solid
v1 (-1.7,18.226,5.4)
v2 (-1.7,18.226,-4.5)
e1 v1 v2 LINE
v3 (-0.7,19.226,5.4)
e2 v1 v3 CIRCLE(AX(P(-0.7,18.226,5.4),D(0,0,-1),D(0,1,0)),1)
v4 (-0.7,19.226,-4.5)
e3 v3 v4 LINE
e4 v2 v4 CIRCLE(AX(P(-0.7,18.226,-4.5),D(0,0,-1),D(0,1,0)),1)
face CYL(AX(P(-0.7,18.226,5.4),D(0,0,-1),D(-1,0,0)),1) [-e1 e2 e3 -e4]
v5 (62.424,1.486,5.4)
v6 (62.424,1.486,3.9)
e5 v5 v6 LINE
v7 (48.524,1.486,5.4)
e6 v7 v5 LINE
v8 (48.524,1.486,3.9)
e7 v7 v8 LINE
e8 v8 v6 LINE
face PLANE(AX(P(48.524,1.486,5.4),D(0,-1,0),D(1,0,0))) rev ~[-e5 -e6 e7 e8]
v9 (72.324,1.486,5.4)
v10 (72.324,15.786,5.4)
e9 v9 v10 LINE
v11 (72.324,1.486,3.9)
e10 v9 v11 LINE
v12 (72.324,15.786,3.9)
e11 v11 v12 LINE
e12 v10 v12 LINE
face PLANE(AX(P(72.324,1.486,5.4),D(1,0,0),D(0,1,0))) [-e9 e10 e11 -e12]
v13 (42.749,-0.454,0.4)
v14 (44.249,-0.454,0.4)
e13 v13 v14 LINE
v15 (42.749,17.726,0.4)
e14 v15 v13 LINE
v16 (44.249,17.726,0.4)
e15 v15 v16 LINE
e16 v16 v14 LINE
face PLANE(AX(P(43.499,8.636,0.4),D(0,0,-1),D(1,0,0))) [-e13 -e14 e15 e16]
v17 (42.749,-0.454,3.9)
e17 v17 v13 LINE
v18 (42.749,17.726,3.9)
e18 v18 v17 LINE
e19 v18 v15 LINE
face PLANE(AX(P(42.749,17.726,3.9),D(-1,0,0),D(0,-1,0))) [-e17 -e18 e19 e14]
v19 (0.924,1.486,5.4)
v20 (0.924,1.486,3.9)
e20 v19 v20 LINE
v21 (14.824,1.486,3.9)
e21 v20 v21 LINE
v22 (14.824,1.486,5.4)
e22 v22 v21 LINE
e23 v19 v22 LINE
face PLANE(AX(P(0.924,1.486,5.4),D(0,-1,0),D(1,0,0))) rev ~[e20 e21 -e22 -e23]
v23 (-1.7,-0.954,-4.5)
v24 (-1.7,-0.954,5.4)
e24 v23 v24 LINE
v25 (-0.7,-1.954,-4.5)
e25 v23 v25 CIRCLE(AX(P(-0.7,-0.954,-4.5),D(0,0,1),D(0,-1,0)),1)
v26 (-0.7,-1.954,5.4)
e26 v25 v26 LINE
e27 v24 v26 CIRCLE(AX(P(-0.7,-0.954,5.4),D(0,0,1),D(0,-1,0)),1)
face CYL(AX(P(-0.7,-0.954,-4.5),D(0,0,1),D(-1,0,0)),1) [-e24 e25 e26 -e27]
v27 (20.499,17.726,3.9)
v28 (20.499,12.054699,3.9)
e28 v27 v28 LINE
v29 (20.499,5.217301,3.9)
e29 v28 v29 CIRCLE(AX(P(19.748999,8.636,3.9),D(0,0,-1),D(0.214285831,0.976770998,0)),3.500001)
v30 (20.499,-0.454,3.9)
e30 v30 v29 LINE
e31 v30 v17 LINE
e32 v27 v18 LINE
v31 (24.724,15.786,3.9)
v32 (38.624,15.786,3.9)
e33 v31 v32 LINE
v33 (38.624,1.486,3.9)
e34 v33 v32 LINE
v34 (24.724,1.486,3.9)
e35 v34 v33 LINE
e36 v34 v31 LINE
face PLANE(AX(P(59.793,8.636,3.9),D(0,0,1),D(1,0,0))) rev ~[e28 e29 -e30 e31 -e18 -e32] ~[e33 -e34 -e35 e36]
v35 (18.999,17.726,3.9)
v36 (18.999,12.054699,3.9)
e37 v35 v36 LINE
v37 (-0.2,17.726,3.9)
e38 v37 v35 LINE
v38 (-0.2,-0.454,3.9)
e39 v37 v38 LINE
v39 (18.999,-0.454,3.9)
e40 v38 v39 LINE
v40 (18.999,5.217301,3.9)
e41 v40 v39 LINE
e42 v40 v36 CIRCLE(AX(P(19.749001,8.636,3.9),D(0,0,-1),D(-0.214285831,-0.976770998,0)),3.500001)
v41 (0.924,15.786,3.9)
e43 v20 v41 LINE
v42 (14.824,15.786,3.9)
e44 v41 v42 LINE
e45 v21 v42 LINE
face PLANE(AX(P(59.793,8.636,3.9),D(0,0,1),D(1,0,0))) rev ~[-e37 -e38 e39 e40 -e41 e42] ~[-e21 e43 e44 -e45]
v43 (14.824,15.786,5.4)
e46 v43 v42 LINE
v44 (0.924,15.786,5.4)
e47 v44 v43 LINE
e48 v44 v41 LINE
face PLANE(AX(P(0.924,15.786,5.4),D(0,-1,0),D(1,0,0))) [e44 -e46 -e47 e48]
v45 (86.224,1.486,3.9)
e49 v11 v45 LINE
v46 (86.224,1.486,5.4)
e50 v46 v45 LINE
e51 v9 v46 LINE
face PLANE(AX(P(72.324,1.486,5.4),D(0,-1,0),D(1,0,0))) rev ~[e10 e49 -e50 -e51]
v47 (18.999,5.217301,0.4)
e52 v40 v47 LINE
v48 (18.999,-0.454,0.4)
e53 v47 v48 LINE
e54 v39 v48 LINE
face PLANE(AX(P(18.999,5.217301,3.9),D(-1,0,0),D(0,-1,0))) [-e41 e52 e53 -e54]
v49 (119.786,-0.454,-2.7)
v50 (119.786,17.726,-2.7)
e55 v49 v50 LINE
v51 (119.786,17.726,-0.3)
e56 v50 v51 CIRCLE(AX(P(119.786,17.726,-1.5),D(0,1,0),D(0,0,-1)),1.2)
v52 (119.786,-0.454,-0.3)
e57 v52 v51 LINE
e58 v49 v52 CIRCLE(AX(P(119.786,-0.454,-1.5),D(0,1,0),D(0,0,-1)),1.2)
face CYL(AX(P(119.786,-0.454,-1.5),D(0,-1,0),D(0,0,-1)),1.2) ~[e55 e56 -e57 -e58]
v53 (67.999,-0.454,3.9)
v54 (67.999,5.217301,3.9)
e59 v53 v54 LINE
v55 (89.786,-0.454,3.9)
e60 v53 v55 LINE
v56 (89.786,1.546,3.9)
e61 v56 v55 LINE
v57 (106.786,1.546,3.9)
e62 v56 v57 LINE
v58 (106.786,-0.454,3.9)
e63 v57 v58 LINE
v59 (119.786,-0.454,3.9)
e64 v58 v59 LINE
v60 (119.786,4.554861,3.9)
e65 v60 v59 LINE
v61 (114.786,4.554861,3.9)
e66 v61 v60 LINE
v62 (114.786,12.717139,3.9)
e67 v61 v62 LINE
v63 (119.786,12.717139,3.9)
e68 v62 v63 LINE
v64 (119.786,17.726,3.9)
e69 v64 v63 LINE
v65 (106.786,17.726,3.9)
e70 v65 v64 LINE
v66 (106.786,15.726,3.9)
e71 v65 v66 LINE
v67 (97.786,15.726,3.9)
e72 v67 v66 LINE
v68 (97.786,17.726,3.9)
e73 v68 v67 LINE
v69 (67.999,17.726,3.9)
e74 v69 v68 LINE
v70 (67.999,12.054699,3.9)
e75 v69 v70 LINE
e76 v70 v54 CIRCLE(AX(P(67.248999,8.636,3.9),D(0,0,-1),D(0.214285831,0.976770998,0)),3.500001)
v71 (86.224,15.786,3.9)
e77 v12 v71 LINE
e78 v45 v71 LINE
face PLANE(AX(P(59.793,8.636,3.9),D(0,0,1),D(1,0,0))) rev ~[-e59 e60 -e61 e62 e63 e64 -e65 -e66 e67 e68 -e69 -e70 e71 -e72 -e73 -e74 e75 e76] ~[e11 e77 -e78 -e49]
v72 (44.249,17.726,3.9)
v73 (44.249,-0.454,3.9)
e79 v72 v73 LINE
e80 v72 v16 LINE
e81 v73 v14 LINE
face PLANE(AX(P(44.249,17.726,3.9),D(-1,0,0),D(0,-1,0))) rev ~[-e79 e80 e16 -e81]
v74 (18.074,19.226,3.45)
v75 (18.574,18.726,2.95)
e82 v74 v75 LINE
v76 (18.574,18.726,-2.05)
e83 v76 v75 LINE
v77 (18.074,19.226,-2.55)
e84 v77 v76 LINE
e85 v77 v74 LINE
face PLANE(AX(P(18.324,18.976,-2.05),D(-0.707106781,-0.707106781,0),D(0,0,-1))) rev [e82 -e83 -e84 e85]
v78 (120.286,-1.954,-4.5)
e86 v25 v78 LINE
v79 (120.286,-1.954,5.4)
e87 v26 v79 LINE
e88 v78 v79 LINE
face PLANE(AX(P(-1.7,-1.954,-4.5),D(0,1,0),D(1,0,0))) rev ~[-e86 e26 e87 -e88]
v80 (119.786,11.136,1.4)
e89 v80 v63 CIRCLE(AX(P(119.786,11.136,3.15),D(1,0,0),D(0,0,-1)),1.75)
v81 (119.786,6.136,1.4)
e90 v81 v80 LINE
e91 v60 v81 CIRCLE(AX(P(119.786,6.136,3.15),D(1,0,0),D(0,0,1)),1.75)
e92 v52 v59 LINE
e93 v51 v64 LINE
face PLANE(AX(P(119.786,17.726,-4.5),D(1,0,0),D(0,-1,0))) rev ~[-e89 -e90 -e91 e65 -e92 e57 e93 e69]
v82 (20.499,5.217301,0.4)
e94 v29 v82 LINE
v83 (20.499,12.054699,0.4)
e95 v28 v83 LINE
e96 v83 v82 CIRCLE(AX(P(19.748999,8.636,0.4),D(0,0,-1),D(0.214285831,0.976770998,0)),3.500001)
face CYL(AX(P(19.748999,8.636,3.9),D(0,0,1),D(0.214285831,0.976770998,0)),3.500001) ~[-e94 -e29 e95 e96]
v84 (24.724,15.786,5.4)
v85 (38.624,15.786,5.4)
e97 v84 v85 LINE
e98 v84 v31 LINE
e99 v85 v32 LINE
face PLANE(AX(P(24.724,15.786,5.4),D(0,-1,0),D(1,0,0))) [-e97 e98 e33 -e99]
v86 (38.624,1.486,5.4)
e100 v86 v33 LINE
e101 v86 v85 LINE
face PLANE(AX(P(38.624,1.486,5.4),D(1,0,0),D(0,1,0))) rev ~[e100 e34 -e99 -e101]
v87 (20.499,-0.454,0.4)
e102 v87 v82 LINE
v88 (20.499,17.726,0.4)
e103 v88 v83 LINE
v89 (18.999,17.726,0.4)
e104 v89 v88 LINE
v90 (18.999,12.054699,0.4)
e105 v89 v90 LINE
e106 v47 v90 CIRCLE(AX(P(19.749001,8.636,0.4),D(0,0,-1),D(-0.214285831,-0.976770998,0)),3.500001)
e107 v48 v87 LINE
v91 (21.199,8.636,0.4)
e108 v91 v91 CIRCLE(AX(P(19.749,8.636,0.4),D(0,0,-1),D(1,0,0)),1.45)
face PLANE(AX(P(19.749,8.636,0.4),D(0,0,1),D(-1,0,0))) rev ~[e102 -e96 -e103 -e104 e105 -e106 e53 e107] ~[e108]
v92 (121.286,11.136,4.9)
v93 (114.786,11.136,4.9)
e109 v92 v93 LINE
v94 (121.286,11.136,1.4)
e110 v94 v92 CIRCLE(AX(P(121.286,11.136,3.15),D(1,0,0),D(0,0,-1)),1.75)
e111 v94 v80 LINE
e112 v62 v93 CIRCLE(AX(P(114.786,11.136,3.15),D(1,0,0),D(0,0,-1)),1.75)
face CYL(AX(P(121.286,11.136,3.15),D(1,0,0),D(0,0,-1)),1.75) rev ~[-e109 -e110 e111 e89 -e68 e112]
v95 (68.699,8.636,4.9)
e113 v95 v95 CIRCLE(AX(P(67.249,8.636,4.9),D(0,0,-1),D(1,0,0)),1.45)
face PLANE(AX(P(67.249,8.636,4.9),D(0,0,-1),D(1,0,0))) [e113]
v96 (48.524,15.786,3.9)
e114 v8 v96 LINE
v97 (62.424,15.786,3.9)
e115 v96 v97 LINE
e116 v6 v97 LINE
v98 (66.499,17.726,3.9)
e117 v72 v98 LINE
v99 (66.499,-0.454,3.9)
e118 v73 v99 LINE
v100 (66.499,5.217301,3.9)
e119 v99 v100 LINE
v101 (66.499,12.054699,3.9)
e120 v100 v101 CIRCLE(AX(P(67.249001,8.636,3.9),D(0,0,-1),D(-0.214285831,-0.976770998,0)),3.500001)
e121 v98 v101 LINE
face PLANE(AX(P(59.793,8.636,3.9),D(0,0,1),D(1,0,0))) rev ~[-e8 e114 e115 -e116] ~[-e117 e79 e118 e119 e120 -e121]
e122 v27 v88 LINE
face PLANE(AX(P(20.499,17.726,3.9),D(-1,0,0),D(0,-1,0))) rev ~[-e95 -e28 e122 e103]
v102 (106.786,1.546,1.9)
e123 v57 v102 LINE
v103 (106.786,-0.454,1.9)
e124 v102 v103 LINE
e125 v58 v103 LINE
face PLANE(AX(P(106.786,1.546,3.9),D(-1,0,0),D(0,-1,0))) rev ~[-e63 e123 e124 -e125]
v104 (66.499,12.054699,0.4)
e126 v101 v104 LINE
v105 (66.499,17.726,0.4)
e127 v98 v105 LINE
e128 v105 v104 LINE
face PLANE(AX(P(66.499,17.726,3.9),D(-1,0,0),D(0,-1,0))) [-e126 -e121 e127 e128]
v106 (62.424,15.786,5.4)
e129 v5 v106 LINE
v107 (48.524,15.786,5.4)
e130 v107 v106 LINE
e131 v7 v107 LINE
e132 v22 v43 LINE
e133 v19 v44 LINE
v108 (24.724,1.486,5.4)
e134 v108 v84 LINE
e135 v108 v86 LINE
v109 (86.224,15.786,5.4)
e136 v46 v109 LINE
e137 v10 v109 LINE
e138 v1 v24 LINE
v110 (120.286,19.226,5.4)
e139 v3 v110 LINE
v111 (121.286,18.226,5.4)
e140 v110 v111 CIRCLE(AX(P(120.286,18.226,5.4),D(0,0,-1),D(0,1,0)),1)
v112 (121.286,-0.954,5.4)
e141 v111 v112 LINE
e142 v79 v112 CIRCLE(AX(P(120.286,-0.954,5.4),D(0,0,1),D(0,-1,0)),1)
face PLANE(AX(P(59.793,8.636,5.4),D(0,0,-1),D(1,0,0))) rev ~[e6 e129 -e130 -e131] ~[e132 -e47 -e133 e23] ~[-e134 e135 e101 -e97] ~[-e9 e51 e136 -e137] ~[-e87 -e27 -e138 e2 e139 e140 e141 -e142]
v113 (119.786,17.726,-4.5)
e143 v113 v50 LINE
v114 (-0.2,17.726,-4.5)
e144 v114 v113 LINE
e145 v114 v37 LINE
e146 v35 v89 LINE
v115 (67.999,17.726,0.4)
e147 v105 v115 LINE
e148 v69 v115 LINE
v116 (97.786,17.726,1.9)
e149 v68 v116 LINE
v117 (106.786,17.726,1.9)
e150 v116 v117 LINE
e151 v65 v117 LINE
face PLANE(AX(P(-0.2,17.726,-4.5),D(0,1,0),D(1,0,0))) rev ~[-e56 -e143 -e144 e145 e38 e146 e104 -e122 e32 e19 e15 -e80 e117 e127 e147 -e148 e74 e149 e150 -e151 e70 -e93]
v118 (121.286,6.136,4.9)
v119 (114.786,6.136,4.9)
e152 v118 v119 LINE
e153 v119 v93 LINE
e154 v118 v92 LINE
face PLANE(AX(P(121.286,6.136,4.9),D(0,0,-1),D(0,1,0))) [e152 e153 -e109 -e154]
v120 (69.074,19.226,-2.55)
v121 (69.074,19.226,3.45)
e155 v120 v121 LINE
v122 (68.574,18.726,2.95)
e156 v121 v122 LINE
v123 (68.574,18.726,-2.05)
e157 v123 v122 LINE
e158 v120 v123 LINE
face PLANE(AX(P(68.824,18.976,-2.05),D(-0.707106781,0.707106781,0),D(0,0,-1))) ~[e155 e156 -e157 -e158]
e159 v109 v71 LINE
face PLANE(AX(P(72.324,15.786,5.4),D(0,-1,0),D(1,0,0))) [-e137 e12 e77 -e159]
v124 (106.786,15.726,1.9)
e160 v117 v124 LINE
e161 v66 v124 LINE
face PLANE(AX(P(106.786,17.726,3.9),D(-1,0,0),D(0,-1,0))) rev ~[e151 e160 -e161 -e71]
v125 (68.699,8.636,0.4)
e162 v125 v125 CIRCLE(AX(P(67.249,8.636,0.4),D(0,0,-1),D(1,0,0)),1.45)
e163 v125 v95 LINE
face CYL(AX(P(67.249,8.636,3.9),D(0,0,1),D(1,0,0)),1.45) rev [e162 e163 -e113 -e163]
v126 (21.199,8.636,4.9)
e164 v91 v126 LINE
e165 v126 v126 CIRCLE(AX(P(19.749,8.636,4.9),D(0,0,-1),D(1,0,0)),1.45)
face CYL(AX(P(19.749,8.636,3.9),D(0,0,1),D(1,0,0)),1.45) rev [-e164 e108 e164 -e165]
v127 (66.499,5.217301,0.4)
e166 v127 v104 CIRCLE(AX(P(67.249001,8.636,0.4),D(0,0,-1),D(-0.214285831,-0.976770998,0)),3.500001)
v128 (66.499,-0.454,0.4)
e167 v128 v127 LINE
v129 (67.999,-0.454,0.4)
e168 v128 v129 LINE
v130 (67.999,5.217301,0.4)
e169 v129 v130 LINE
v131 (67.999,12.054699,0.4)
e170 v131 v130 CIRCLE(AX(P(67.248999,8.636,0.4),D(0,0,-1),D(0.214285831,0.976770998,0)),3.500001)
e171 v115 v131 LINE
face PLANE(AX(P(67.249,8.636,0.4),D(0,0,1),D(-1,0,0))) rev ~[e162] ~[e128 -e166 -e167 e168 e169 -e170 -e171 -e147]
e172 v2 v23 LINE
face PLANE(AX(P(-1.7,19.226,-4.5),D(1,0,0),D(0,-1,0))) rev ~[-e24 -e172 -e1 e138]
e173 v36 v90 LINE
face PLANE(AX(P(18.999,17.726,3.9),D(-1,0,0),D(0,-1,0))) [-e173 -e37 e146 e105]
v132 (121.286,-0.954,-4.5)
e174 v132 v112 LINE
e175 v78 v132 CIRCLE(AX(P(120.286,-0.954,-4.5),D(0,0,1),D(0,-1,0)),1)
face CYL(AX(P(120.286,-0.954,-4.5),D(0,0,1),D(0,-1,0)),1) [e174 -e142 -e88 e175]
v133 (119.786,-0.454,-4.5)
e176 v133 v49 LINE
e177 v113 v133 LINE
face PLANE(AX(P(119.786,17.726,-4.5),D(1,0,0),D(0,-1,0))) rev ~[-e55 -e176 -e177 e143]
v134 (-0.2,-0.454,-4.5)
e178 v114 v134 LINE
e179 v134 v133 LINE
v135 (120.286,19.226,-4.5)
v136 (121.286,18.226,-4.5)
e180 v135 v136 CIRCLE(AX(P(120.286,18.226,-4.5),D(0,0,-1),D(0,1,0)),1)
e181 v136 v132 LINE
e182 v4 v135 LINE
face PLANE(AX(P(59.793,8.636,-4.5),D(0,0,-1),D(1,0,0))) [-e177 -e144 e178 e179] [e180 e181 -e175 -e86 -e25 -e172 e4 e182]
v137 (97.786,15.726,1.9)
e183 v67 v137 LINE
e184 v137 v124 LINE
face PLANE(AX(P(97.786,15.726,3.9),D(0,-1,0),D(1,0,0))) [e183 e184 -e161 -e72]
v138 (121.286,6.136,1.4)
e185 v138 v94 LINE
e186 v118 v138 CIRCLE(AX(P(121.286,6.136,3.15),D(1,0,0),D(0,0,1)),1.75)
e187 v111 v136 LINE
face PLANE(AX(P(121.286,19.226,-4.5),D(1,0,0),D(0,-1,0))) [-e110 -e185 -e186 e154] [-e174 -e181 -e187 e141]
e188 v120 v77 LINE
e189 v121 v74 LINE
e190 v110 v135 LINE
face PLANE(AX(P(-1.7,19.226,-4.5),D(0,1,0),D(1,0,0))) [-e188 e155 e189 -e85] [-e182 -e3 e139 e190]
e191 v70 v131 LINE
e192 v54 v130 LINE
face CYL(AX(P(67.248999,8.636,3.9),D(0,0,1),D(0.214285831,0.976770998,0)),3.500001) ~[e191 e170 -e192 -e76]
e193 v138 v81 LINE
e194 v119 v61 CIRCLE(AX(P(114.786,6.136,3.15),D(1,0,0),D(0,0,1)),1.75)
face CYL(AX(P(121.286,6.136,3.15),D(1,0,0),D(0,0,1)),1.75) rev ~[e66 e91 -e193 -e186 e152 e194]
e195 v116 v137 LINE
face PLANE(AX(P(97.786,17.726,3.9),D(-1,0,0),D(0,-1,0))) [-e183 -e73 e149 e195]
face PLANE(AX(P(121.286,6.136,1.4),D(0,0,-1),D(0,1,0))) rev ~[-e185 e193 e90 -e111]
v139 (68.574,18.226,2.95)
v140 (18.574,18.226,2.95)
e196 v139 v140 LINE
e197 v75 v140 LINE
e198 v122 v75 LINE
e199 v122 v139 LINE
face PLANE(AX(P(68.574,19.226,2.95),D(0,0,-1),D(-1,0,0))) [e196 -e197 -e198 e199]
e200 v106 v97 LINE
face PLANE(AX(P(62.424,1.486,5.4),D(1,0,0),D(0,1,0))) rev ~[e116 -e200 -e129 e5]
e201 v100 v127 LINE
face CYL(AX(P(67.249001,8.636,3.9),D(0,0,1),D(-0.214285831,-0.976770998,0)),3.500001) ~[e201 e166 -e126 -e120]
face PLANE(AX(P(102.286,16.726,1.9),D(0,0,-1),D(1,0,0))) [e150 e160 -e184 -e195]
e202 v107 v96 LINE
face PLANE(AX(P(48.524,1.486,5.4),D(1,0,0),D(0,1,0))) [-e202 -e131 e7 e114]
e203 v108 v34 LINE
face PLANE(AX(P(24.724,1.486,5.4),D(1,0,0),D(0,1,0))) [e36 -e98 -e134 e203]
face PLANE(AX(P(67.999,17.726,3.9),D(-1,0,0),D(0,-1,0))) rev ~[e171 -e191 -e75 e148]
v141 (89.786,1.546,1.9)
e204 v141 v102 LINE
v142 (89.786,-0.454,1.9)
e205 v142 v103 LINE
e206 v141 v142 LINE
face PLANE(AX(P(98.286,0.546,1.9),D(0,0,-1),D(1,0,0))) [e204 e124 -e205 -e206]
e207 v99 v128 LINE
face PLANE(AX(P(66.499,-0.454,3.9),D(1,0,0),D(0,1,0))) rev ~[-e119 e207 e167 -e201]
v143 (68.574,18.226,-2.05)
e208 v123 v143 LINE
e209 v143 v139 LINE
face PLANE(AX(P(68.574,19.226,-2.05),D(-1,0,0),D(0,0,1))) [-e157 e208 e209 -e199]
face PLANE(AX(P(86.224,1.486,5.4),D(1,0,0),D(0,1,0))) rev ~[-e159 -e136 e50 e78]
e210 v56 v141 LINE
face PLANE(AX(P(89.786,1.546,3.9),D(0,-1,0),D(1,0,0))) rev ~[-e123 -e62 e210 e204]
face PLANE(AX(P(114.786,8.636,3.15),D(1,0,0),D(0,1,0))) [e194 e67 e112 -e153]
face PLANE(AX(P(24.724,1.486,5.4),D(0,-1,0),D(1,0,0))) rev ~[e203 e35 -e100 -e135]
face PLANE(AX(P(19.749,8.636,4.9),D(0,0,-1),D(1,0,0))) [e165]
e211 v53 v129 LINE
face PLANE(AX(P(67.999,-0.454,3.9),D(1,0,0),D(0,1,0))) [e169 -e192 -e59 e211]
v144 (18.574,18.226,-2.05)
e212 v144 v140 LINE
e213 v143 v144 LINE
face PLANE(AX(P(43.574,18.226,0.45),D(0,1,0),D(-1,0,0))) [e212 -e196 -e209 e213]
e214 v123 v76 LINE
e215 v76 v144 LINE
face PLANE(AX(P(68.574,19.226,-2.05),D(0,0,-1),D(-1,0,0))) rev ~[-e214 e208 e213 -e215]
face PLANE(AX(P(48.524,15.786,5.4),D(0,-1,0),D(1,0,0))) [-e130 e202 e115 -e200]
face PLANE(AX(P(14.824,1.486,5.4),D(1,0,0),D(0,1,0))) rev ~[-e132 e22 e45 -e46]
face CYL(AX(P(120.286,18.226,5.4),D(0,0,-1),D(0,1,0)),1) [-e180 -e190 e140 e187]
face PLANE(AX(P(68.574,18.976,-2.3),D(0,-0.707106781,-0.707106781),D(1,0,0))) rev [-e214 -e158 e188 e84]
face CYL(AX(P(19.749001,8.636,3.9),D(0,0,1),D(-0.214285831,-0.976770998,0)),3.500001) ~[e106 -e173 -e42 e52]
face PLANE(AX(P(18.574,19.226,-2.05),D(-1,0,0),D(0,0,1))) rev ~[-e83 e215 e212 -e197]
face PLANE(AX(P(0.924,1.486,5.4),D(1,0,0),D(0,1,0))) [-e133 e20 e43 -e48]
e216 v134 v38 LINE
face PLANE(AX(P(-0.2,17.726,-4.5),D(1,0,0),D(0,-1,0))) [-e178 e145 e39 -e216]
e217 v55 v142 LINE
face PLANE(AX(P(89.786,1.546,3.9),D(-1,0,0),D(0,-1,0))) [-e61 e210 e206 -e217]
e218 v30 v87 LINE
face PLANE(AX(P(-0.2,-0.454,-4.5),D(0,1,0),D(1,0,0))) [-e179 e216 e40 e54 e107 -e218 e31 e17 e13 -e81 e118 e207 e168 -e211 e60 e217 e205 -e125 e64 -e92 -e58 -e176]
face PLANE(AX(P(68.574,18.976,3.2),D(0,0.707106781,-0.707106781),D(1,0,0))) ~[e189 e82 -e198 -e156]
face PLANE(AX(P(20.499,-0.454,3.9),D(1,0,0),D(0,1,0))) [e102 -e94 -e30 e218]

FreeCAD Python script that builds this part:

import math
import FreeCAD as App
import Part
import Sketcher

V = App.Vector


def edges_at(feature, points):
    """Names of the edges that pass closest to the given points."""
    edges = feature.Shape.Edges
    near = lambda p: min(range(len(edges)), key=lambda i: edges[i].distToShape(Part.Vertex(*p))[0])
    return sorted({f"Edge{near(p) + 1}" for p in points})


def add_polygon(sketch, points):
    """Adds a closed chain of lines whose ends are joined by coincident constraints."""
    first, n = sketch.GeometryCount, len(points)
    for a, b in zip(points, points[1:] + points[:1]):
        sketch.addGeometry(Part.LineSegment(App.Vector(*a, 0), App.Vector(*b, 0)), False)
    for i in range(n):
        sketch.addConstraint(Sketcher.Constraint("Coincident", first + i, 2, first + (i + 1) % n, 1))

doc = App.newDocument("Part")
params = doc.addObject("Spreadsheet::Sheet", "Params")
for row, (alias, value) in enumerate([
    ("sketch1_height", "21.18 mm"),
    ("sketch1_height2", "18.18 mm"),
    ("pad1_length", "9.9 mm"),
    ("sketch2_height", "21.18 mm"),
    ("pad2_length", "1.5 mm"),
    ("sketch3_width", "13.9 mm"),
    ("sketch3_height", "14.3 mm"),
    ("sketch4_diameter", "2.9 mm"),
    ("sketch4_radius", "3.500001 mm"),
    ("sketch4_width", "1.5 mm"),
    ("sketch4_height", "18.18 mm"),
    ("pad3_length", "3.5 mm"),
    ("sketch5_width", "9 mm"),
    ("sketch5_width2", "17 mm"),
    ("sketch5_height", "2 mm"),
    ("pad4_length", "2 mm"),
    ("sketch6_width", "5 mm"),
    ("sketch6_radius", "1.75 mm"),
    ("pocket2_length", "6.5 mm"),
    ("fillet_radius", "1 mm"),
    ("sketch7_radius", "1.2 mm"),
    ("pad5_length", "18.18 mm"),
    ("sketch8_width", "50 mm"),
    ("sketch8_height", "5 mm"),
    ("pocket3_length", "1 mm"),
    ("chamfer_size", "0.5 mm"),
    ("sketch9_diameter", "2.9 mm"),
    ("pocket4_length", "1 mm"),
], start=1):
    params.set(f"A{row}", alias)
    params.set(f"B{row}", "=" + value)
    params.setAlias(f"B{row}", alias)

body = doc.addObject("PartDesign::Body", "Body")

# Sketch on XY plane
sketch1 = body.newObject("Sketcher::SketchObject", "Sketch")
sketch1.AttachmentSupport = (doc.getObject("XY_Plane"), [""])
sketch1.MapMode = "FlatFace"
sketch1.AttachmentOffset = App.Placement(V(0, 0, -4.5), App.Rotation())
add_polygon(sketch1, [(-1.7, -1.954), (-1.7, 19.226), (121.286, 19.226), (121.286, -1.954)])  # lines 0-3
add_polygon(sketch1, [(119.786, 17.726), (-0.2, 17.726), (-0.2, -0.454), (119.786, -0.454)])  # lines 4-7
sketch1.addConstraint(Sketcher.Constraint("Vertical", 0))
sketch1.addConstraint(Sketcher.Constraint("Horizontal", 1))
sketch1.addConstraint(Sketcher.Constraint("Vertical", 2))
sketch1.addConstraint(Sketcher.Constraint("Horizontal", 3))
sketch1.addConstraint(Sketcher.Constraint("Horizontal", 4))
sketch1.addConstraint(Sketcher.Constraint("Vertical", 5))
sketch1.addConstraint(Sketcher.Constraint("Horizontal", 6))
sketch1.addConstraint(Sketcher.Constraint("Vertical", 7))
sketch1.addConstraint(Sketcher.Constraint("DistanceY", 0, 1, 0, 2, 21.18))
sketch1.addConstraint(Sketcher.Constraint("DistanceY", 5, 2, 5, 1, 18.18))
sketch1.addConstraint(Sketcher.Constraint("DistanceX", 0, 2, -1, 1, 1.7))
sketch1.addConstraint(Sketcher.Constraint("DistanceX", 4, 2, -1, 1, 0.2))
sketch1.addConstraint(Sketcher.Constraint("DistanceY", 4, 2, 0, 2, 1.5))
sketch1.addConstraint(Sketcher.Constraint("DistanceX", 6, 2, 2, 2, 1.5))
sketch1.addConstraint(Sketcher.Constraint("DistanceX", 1, 1, 1, 2, 122.986))
sketch1.addConstraint(Sketcher.Constraint("DistanceY", -1, 1, 0, 2, 19.226))
sketch1.setExpression("Constraints[16]", "Params.sketch1_height")
sketch1.setExpression("Constraints[17]", "Params.sketch1_height2")
pad1 = body.newObject("PartDesign::Pad", "Pad")
pad1.Profile = sketch1
pad1.setExpression("Length", "Params.pad1_length")

# Sketch on XY plane
sketch2 = body.newObject("Sketcher::SketchObject", "Sketch001")
sketch2.AttachmentSupport = (doc.getObject("XY_Plane"), [""])
sketch2.MapMode = "FlatFace"
sketch2.AttachmentOffset = App.Placement(V(0, 0, 5.4), App.Rotation())
add_polygon(sketch2, [(-1.7, 19.226), (-1.7, -1.954), (121.286, -1.954), (121.286, 19.226)])  # lines 0-3
sketch2.addConstraint(Sketcher.Constraint("Vertical", 0))
sketch2.addConstraint(Sketcher.Constraint("Horizontal", 1))
sketch2.addConstraint(Sketcher.Constraint("Vertical", 2))
sketch2.addConstraint(Sketcher.Constraint("Horizontal", 3))
sketch2.addConstraint(Sketcher.Constraint("DistanceY", 0, 2, 0, 1, 21.18))
sketch2.addConstraint(Sketcher.Constraint("DistanceX", 0, 2, -1, 1, 1.7))
sketch2.addConstraint(Sketcher.Constraint("DistanceX", 1, 1, 1, 2, 122.986))
sketch2.addConstraint(Sketcher.Constraint("DistanceY", 0, 2, -1, 1, 1.954))
sketch2.setExpression("Constraints[8]", "Params.sketch2_height")
pad2 = body.newObject("PartDesign::Pad", "Pad001")
pad2.Profile = sketch2
pad2.setExpression("Length", "Params.pad2_length")
pad2.Reversed = True

# Sketch on XY plane
sketch3 = body.newObject("Sketcher::SketchObject", "Sketch002")
sketch3.AttachmentSupport = (doc.getObject("XY_Plane"), [""])
sketch3.MapMode = "FlatFace"
sketch3.AttachmentOffset = App.Placement(V(0, 0, 5.4), App.Rotation())
add_polygon(sketch3, [(0.924, 15.786), (0.924, 1.486), (14.824, 1.486), (14.824, 15.786)])  # lines 0-3
add_polygon(sketch3, [(24.724, 15.786), (24.724, 1.486), (38.624, 1.486), (38.624, 15.786)])  # lines 4-7
add_polygon(sketch3, [(48.524, 15.786), (48.524, 1.486), (62.424, 1.486), (62.424, 15.786)])  # lines 8-11
add_polygon(sketch3, [(72.324, 15.786), (72.324, 1.486), (86.224, 1.486), (86.224, 15.786)])  # lines 12-15
sketch3.addConstraint(Sketcher.Constraint("Vertical", 0))
sketch3.addConstraint(Sketcher.Constraint("Horizontal", 1))
sketch3.addConstraint(Sketcher.Constraint("Vertical", 2))
sketch3.addConstraint(Sketcher.Constraint("Horizontal", 3))
sketch3.addConstraint(Sketcher.Constraint("Vertical", 4))
sketch3.addConstraint(Sketcher.Constraint("Horizontal", 5))
sketch3.addConstraint(Sketcher.Constraint("Vertical", 6))
sketch3.addConstraint(Sketcher.Constraint("Horizontal", 7))
sketch3.addConstraint(Sketcher.Constraint("Vertical", 8))
sketch3.addConstraint(Sketcher.Constraint("Horizontal", 9))
sketch3.addConstraint(Sketcher.Constraint("Vertical", 10))
sketch3.addConstraint(Sketcher.Constraint("Horizontal", 11))
sketch3.addConstraint(Sketcher.Constraint("Vertical", 12))
sketch3.addConstraint(Sketcher.Constraint("Horizontal", 13))
sketch3.addConstraint(Sketcher.Constraint("Vertical", 14))
sketch3.addConstraint(Sketcher.Constraint("Horizontal", 15))
sketch3.addConstraint(Sketcher.Constraint("Horizontal", 1, 2, 4, 2))
sketch3.addConstraint(Sketcher.Constraint("Horizontal", 3, 2, 6, 2))
sketch3.addConstraint(Sketcher.Constraint("Horizontal", 5, 2, 8, 2))
sketch3.addConstraint(Sketcher.Constraint("Horizontal", 7, 2, 10, 2))
sketch3.addConstraint(Sketcher.Constraint("Horizontal", 9, 2, 12, 2))
sketch3.addConstraint(Sketcher.Constraint("Horizontal", 11, 2, 14, 2))
sketch3.addConstraint(Sketcher.Constraint("Equal", 3, 5))
sketch3.addConstraint(Sketcher.Constraint("Equal", 7, 9))
sketch3.addConstraint(Sketcher.Constraint("Equal", 11, 13))
sketch3.addConstraint(Sketcher.Constraint("DistanceX", 1, 1, 1, 2, 13.9))
sketch3.addConstraint(Sketcher.Constraint("DistanceY", 0, 2, 0, 1, 14.3))
sketch3.addConstraint(Sketcher.Constraint("DistanceX", 1, 2, 4, 2, 9.9))
sketch3.addConstraint(Sketcher.Constraint("DistanceX", 5, 2, 8, 2, 9.9))
sketch3.addConstraint(Sketcher.Constraint("DistanceX", 9, 2, 12, 2, 9.9))
sketch3.addConstraint(Sketcher.Constraint("DistanceX", -1, 1, 0, 2, 0.924))
sketch3.addConstraint(Sketcher.Constraint("DistanceY", -1, 1, 0, 2, 1.486))
sketch3.setExpression("Constraints[41]", "Params.sketch3_width")
sketch3.setExpression("Constraints[42]", "Params.sketch3_height")
pocket1 = body.newObject("PartDesign::Pocket", "Pocket")
pocket1.Profile = sketch3
pocket1.Type = "ThroughAll"

# Sketch on XY plane
sketch4 = body.newObject("Sketcher::SketchObject", "Sketch003")
sketch4.AttachmentSupport = (doc.getObject("XY_Plane"), [""])
sketch4.MapMode = "FlatFace"
sketch4.AttachmentOffset = App.Placement(V(0, 0, 3.9), App.Rotation())
sketch4.addGeometry(Part.LineSegment(V(18.999, -0.454, 0), V(18.999, 5.217301, 0)), False)  # 0
sketch4.addGeometry(Part.ArcOfCircle(Part.Circle(V(19.749001, 8.636, 0), V(0, 0, 1), 3.500001), math.radians(102.373632), math.radians(257.626368)), False)  # 1
sketch4.addGeometry(Part.LineSegment(V(18.999, 12.054699, 0), V(18.999, 17.726, 0)), False)  # 2
sketch4.addGeometry(Part.LineSegment(V(18.999, 17.726, 0), V(20.499, 17.726, 0)), False)  # 3
sketch4.addGeometry(Part.LineSegment(V(20.499, 17.726, 0), V(20.499, 12.054699, 0)), False)  # 4
sketch4.addGeometry(Part.ArcOfCircle(Part.Circle(V(19.748999, 8.636, 0), V(0, 0, 1), 3.500001), math.radians(-77.626368), math.radians(77.626368)), False)  # 5
sketch4.addGeometry(Part.LineSegment(V(20.499, 5.217301, 0), V(20.499, -0.454, 0)), False)  # 6
sketch4.addGeometry(Part.LineSegment(V(20.499, -0.454, 0), V(18.999, -0.454, 0)), False)  # 7
sketch4.addGeometry(Part.Circle(V(19.749, 8.636, 0), V(0, 0, 1), 1.45), False)  # 8
add_polygon(sketch4, [(42.749, -0.454), (42.749, 17.726), (44.249, 17.726), (44.249, -0.454)])  # lines 9-12
sketch4.addGeometry(Part.LineSegment(V(67.999, -0.454, 0), V(66.499, -0.454, 0)), False)  # 13
sketch4.addGeometry(Part.LineSegment(V(66.499, -0.454, 0), V(66.499, 5.217301, 0)), False)  # 14
sketch4.addGeometry(Part.ArcOfCircle(Part.Circle(V(67.249001, 8.636, 0), V(0, 0, 1), 3.500001), math.radians(102.373632), math.radians(257.626368)), False)  # 15
sketch4.addGeometry(Part.LineSegment(V(66.499, 12.054699, 0), V(66.499, 17.726, 0)), False)  # 16
sketch4.addGeometry(Part.LineSegment(V(66.499, 17.726, 0), V(67.999, 17.726, 0)), False)  # 17
sketch4.addGeometry(Part.LineSegment(V(67.999, 17.726, 0), V(67.999, 12.054699, 0)), False)  # 18
sketch4.addGeometry(Part.ArcOfCircle(Part.Circle(V(67.248999, 8.636, 0), V(0, 0, 1), 3.500001), math.radians(-77.626368), math.radians(77.626368)), False)  # 19
sketch4.addGeometry(Part.LineSegment(V(67.999, 5.217301, 0), V(67.999, -0.454, 0)), False)  # 20
sketch4.addGeometry(Part.Circle(V(67.249, 8.636, 0), V(0, 0, 1), 1.45), False)  # 21
sketch4.addConstraint(Sketcher.Constraint("Coincident", 0, 2, 1, 2))
sketch4.addConstraint(Sketcher.Constraint("Coincident", 1, 1, 2, 1))
sketch4.addConstraint(Sketcher.Constraint("Coincident", 2, 2, 3, 1))
sketch4.addConstraint(Sketcher.Constraint("Coincident", 3, 2, 4, 1))
sketch4.addConstraint(Sketcher.Constraint("Coincident", 4, 2, 5, 2))
sketch4.addConstraint(Sketcher.Constraint("Coincident", 5, 1, 6, 1))
sketch4.addConstraint(Sketcher.Constraint("Coincident", 6, 2, 7, 1))
sketch4.addConstraint(Sketcher.Constraint("Coincident", 7, 2, 0, 1))
sketch4.addConstraint(Sketcher.Constraint("Coincident", 13, 2, 14, 1))
sketch4.addConstraint(Sketcher.Constraint("Coincident", 14, 2, 15, 2))
sketch4.addConstraint(Sketcher.Constraint("Coincident", 15, 1, 16, 1))
sketch4.addConstraint(Sketcher.Constraint("Coincident", 16, 2, 17, 1))
sketch4.addConstraint(Sketcher.Constraint("Coincident", 17, 2, 18, 1))
sketch4.addConstraint(Sketcher.Constraint("Coincident", 18, 2, 19, 2))
sketch4.addConstraint(Sketcher.Constraint("Coincident", 19, 1, 20, 1))
sketch4.addConstraint(Sketcher.Constraint("Coincident", 20, 2, 13, 1))
sketch4.addConstraint(Sketcher.Constraint("Vertical", 0))
sketch4.addConstraint(Sketcher.Constraint("Vertical", 2))
sketch4.addConstraint(Sketcher.Constraint("Horizontal", 3))
sketch4.addConstraint(Sketcher.Constraint("Vertical", 4))
sketch4.addConstraint(Sketcher.Constraint("Vertical", 6))
sketch4.addConstraint(Sketcher.Constraint("Horizontal", 7))
sketch4.addConstraint(Sketcher.Constraint("Vertical", 9))
sketch4.addConstraint(Sketcher.Constraint("Horizontal", 10))
sketch4.addConstraint(Sketcher.Constraint("Vertical", 11))
sketch4.addConstraint(Sketcher.Constraint("Horizontal", 12))
sketch4.addConstraint(Sketcher.Constraint("Horizontal", 13))
sketch4.addConstraint(Sketcher.Constraint("Vertical", 14))
sketch4.addConstraint(Sketcher.Constraint("Vertical", 16))
sketch4.addConstraint(Sketcher.Constraint("Horizontal", 17))
sketch4.addConstraint(Sketcher.Constraint("Vertical", 18))
sketch4.addConstraint(Sketcher.Constraint("Vertical", 20))
sketch4.addConstraint(Sketcher.Constraint("Coincident", 5, 3, 1, 3))
sketch4.addConstraint(Sketcher.Constraint("Coincident", 8, 3, 1, 3))
sketch4.addConstraint(Sketcher.Constraint("Coincident", 19, 3, 15, 3))
sketch4.addConstraint(Sketcher.Constraint("Coincident", 21, 3, 15, 3))
sketch4.addConstraint(Sketcher.Constraint("Equal", 1, 5))
sketch4.addConstraint(Sketcher.Constraint("Equal", 5, 15))
sketch4.addConstraint(Sketcher.Constraint("Equal", 15, 19))
sketch4.addConstraint(Sketcher.Constraint("Equal", 8, 21))
sketch4.addConstraint(Sketcher.Constraint("Horizontal", 8, 3, 15, 3))
sketch4.addConstraint(Sketcher.Constraint("Horizontal", 1, 1, 4, 2))
sketch4.addConstraint(Sketcher.Constraint("Horizontal", 0, 2, 5, 1))
sketch4.addConstraint(Sketcher.Constraint("Horizontal", 3, 2, 9, 2))
sketch4.addConstraint(Sketcher.Constraint("Horizontal", 7, 2, 11, 2))
sketch4.addConstraint(Sketcher.Constraint("Horizontal", 12, 2, 13, 2))
sketch4.addConstraint(Sketcher.Constraint("Horizontal", 5, 1, 14, 2))
sketch4.addConstraint(Sketcher.Constraint("Horizontal", 4, 2, 15, 1))
sketch4.addConstraint(Sketcher.Constraint("Horizontal", 10, 2, 16, 2))
sketch4.addConstraint(Sketcher.Constraint("Horizontal", 15, 1, 18, 2))
sketch4.addConstraint(Sketcher.Constraint("Horizontal", 14, 2, 19, 1))
sketch4.addConstraint(Sketcher.Constraint("Vertical", 0, 2, 1, 1))
sketch4.addConstraint(Sketcher.Constraint("Equal", 7, 10))
sketch4.addConstraint(Sketcher.Constraint("Equal", 0, 2))
sketch4.addConstraint(Sketcher.Constraint("Diameter", 8, 2.9))
sketch4.addConstraint(Sketcher.Constraint("Radius", 1, 3.500001))
sketch4.addConstraint(Sketcher.Constraint("DistanceX", 3, 1, 3, 2, 1.5))
sketch4.addConstraint(Sketcher.Constraint("DistanceX", 1, 3, 9, 2, 22.999999))
sketch4.addConstraint(Sketcher.Constraint("DistanceX", 10, 2, 19, 3, 22.999999))
sketch4.addConstraint(Sketcher.Constraint("DistanceY", 9, 1, 9, 2, 18.18))
sketch4.addConstraint(Sketcher.Constraint("DistanceX", -1, 1, 1, 3, 19.749001))
sketch4.addConstraint(Sketcher.Constraint("DistanceY", -1, 1, 1, 3, 8.636))
sketch4.setExpression("Constraints[58]", "Params.sketch4_diameter")
sketch4.setExpression("Constraints[59]", "Params.sketch4_radius")
sketch4.setExpression("Constraints[60]", "Params.sketch4_width")
sketch4.setExpression("Constraints[63]", "Params.sketch4_height")
pad3 = body.newObject("PartDesign::Pad", "Pad002")
pad3.Profile = sketch4
pad3.setExpression("Length", "Params.pad3_length")
pad3.Reversed = True

# Sketch on XY plane
sketch5 = body.newObject("Sketcher::SketchObject", "Sketch004")
sketch5.AttachmentSupport = (doc.getObject("XY_Plane"), [""])
sketch5.MapMode = "FlatFace"
sketch5.AttachmentOffset = App.Placement(V(0, 0, 3.9), App.Rotation())
add_polygon(sketch5, [(97.786, 15.726), (97.786, 17.726), (106.786, 17.726), (106.786, 15.726)])  # lines 0-3
add_polygon(sketch5, [(89.786, -0.454), (89.786, 1.546), (106.786, 1.546), (106.786, -0.454)])  # lines 4-7
sketch5.addConstraint(Sketcher.Constraint("Vertical", 0))
sketch5.addConstraint(Sketcher.Constraint("Horizontal", 1))
sketch5.addConstraint(Sketcher.Constraint("Vertical", 2))
sketch5.addConstraint(Sketcher.Constraint("Horizontal", 3))
sketch5.addConstraint(Sketcher.Constraint("Vertical", 4))
sketch5.addConstraint(Sketcher.Constraint("Horizontal", 5))
sketch5.addConstraint(Sketcher.Constraint("Vertical", 6))
sketch5.addConstraint(Sketcher.Constraint("Horizontal", 7))
sketch5.addConstraint(Sketcher.Constraint("Vertical", 2, 2, 5, 2))
sketch5.addConstraint(Sketcher.Constraint("Equal", 2, 4))
sketch5.addConstraint(Sketcher.Constraint("DistanceX", 1, 1, 1, 2, 9.0))
sketch5.addConstraint(Sketcher.Constraint("DistanceX", 5, 1, 5, 2, 17.0))
sketch5.addConstraint(Sketcher.Constraint("DistanceY", 0, 1, 0, 2, 2.0))
sketch5.addConstraint(Sketcher.Constraint("DistanceY", 4, 2, 3, 2, 14.18))
sketch5.addConstraint(Sketcher.Constraint("DistanceX", -1, 1, 0, 2, 97.786))
sketch5.addConstraint(Sketcher.Constraint("DistanceY", -1, 1, 0, 2, 17.726))
sketch5.setExpression("Constraints[18]", "Params.sketch5_width")
sketch5.setExpression("Constraints[19]", "Params.sketch5_width2")
sketch5.setExpression("Constraints[20]", "Params.sketch5_height")
pad4 = body.newObject("PartDesign::Pad", "Pad003")
pad4.Profile = sketch5
pad4.setExpression("Length", "Params.pad4_length")
pad4.Reversed = True

# Sketch on YZ plane
sketch6 = body.newObject("Sketcher::SketchObject", "Sketch005")
sketch6.AttachmentSupport = (doc.getObject("YZ_Plane"), [""])
sketch6.MapMode = "FlatFace"
sketch6.AttachmentOffset = App.Placement(V(0, 0, 121.286), App.Rotation())
sketch6.addGeometry(Part.ArcOfCircle(Part.Circle(V(6.136, 3.15, 0), V(0, 0, 1), 1.75), math.radians(90), math.radians(270)), False)
sketch6.addGeometry(Part.LineSegment(V(6.136, 1.4, 0), V(11.136, 1.4, 0)), False)
sketch6.addGeometry(Part.ArcOfCircle(Part.Circle(V(11.136, 3.15, 0), V(0, 0, 1), 1.75), math.radians(-90), math.radians(90)), False)
sketch6.addGeometry(Part.LineSegment(V(11.136, 4.9, 0), V(6.136, 4.9, 0)), False)
sketch6.addConstraint(Sketcher.Constraint("Tangent", 0, 2, 1, 1))
sketch6.addConstraint(Sketcher.Constraint("Tangent", 1, 2, 2, 1))
sketch6.addConstraint(Sketcher.Constraint("Tangent", 2, 2, 3, 1))
sketch6.addConstraint(Sketcher.Constraint("Tangent", 3, 2, 0, 1))
sketch6.addConstraint(Sketcher.Constraint("Horizontal", 1))
sketch6.addConstraint(Sketcher.Constraint("Horizontal", 3))
sketch6.addConstraint(Sketcher.Constraint("DistanceX", 1, 1, 1, 2, 5.0))
sketch6.addConstraint(Sketcher.Constraint("Radius", 0, 1.75))
sketch6.addConstraint(Sketcher.Constraint("DistanceY", -1, 1, 0, 2, 1.4))
sketch6.addConstraint(Sketcher.Constraint("DistanceX", -1, 1, 0, 3, 6.136))
sketch6.setExpression("Constraints[6]", "Params.sketch6_width")
sketch6.setExpression("Constraints[7]", "Params.sketch6_radius")
pocket2 = body.newObject("PartDesign::Pocket", "Pocket001")
pocket2.Profile = sketch6
pocket2.setExpression("Length", "Params.pocket2_length")
doc.recompute()

fillet = body.newObject("PartDesign::Fillet", "Fillet")
fillet.Base = (pocket2, edges_at(pocket2, [
    (121.286, 19.226, 0.45),
    (121.286, -1.954, 0.45),
    (-1.7, 19.226, 0.45),
    (-1.7, -1.954, 0.45),
]))
fillet.setExpression("Radius", "Params.fillet_radius")

# Sketch on XZ plane
sketch7 = body.newObject("Sketcher::SketchObject", "Sketch006")
sketch7.AttachmentSupport = (doc.getObject("XZ_Plane"), [""])
sketch7.MapMode = "FlatFace"
sketch7.AttachmentOffset = App.Placement(V(0, 0, 0.454), App.Rotation())
sketch7.addGeometry(Part.ArcOfCircle(Part.Circle(V(119.786, -1.5, 0), V(0, 0, 1), 1.2), math.radians(90), math.radians(270)), False)
sketch7.addGeometry(Part.LineSegment(V(119.786, -0.3, 0), V(119.786, -2.7, 0)), False)
sketch7.addConstraint(Sketcher.Constraint("Coincident", 0, 1, 1, 1))
sketch7.addConstraint(Sketcher.Constraint("Coincident", 1, 2, 0, 2))
sketch7.addConstraint(Sketcher.Constraint("Vertical", 1))
sketch7.addConstraint(Sketcher.Constraint("Radius", 0, 1.2))
sketch7.addConstraint(Sketcher.Constraint("DistanceY", 0, 3, -1, 1, 1.5))
sketch7.addConstraint(Sketcher.Constraint("DistanceX", -1, 1, 0, 3, 119.786))
sketch7.addConstraint(Sketcher.Constraint("DistanceX", -1, 1, 0, 1, 119.786))
sketch7.setExpression("Constraints[3]", "Params.sketch7_radius")
pad5 = body.newObject("PartDesign::Pad", "Pad004")
pad5.Profile = sketch7
pad5.setExpression("Length", "Params.pad5_length")
pad5.Reversed = True

# Sketch on XZ plane
sketch8 = body.newObject("Sketcher::SketchObject", "Sketch007")
sketch8.AttachmentSupport = (doc.getObject("XZ_Plane"), [""])
sketch8.MapMode = "FlatFace"
sketch8.AttachmentOffset = App.Placement(V(0, 0, -19.226), App.Rotation())
add_polygon(sketch8, [(68.574, 2.95), (68.574, -2.05), (18.574, -2.05), (18.574, 2.95)])  # lines 0-3
sketch8.addConstraint(Sketcher.Constraint("Vertical", 0))
sketch8.addConstraint(Sketcher.Constraint("Horizontal", 1))
sketch8.addConstraint(Sketcher.Constraint("Vertical", 2))
sketch8.addConstraint(Sketcher.Constraint("Horizontal", 3))
sketch8.addConstraint(Sketcher.Constraint("DistanceX", 1, 2, 1, 1, 50.0))
sketch8.addConstraint(Sketcher.Constraint("DistanceY", 0, 2, 0, 1, 5.0))
sketch8.addConstraint(Sketcher.Constraint("DistanceY", 0, 2, -1, 1, 2.05))
sketch8.addConstraint(Sketcher.Constraint("DistanceX", -1, 1, 0, 2, 68.574))
sketch8.setExpression("Constraints[8]", "Params.sketch8_width")
sketch8.setExpression("Constraints[9]", "Params.sketch8_height")
pocket3 = body.newObject("PartDesign::Pocket", "Pocket002")
pocket3.Profile = sketch8
pocket3.setExpression("Length", "Params.pocket3_length")
pocket3.Reversed = True
doc.recompute()

chamfer = body.newObject("PartDesign::Chamfer", "Chamfer")
chamfer.Base = (pocket3, edges_at(pocket3, [
    (43.574, 19.226, -2.05),
    (68.574, 19.226, 0.45),
    (43.574, 19.226, 2.95),
    (18.574, 19.226, 0.45),
]))
chamfer.setExpression("Size", "Params.chamfer_size")

# Sketch on XY plane
sketch9 = body.newObject("Sketcher::SketchObject", "Sketch008")
sketch9.AttachmentSupport = (doc.getObject("XY_Plane"), [""])
sketch9.MapMode = "FlatFace"
sketch9.AttachmentOffset = App.Placement(V(0, 0, 3.9), App.Rotation())
sketch9.addGeometry(Part.Circle(V(19.749, 8.636, 0), V(0, 0, 1), 1.45), False)
sketch9.addGeometry(Part.Circle(V(67.249, 8.636, 0), V(0, 0, 1), 1.45), False)
sketch9.addConstraint(Sketcher.Constraint("Equal", 0, 1))
sketch9.addConstraint(Sketcher.Constraint("Horizontal", 0, 3, 1, 3))
sketch9.addConstraint(Sketcher.Constraint("Diameter", 0, 2.9))
sketch9.addConstraint(Sketcher.Constraint("DistanceX", 0, 3, 1, 3, 47.5))
sketch9.addConstraint(Sketcher.Constraint("DistanceX", -1, 1, 0, 3, 19.749))
sketch9.addConstraint(Sketcher.Constraint("DistanceY", -1, 1, 0, 3, 8.636))
sketch9.setExpression("Constraints[2]", "Params.sketch9_diameter")
pocket4 = body.newObject("PartDesign::Pocket", "Pocket003")
pocket4.Profile = sketch9
pocket4.setExpression("Length", "Params.pocket4_length")
pocket4.Reversed = True

doc.recompute()
